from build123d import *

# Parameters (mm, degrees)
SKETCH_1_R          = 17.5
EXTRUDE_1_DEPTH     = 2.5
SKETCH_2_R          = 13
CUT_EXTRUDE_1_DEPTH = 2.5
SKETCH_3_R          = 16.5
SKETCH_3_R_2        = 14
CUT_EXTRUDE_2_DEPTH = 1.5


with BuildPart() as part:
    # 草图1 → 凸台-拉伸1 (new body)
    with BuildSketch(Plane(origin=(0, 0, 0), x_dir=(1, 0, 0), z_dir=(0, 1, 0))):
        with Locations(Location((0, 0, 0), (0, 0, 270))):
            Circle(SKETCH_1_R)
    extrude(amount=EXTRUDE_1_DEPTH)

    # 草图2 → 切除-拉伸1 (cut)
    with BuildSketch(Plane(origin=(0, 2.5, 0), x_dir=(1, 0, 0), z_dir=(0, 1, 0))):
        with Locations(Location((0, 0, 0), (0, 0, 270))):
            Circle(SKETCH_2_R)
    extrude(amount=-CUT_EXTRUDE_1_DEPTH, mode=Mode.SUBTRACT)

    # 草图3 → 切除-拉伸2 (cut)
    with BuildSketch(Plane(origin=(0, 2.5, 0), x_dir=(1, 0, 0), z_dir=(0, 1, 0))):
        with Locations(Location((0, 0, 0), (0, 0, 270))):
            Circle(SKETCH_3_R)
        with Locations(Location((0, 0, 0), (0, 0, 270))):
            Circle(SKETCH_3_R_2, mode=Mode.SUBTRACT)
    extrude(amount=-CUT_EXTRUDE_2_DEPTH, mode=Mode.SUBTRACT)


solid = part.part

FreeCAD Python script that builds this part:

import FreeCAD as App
import Part
import Sketcher
Q = App.Units.Quantity

doc = App.newDocument("Part")
body = doc.addObject("PartDesign::Body", "Body")

# Sketch on XZ plane
sketch1 = body.newObject("Sketcher::SketchObject", "Sketch")
sketch1.AttachmentSupport = (doc.getObject("XZ_Plane"), [""])
sketch1.MapMode = "FlatFace"
sketch1.addGeometry(Part.Circle(App.Vector(0, 0, 0), App.Vector(0, 0, 1), 17.5), False)
sketch1.addConstraint([
    Sketcher.Constraint("Coincident", 0, 3, -1, 1),
    Sketcher.Constraint("Diameter", 0, Q("35 mm")),
])
pad1 = body.newObject("PartDesign::Pad", "Pad")
pad1.Profile = sketch1
pad1.Length = 2.5
pad1.Reversed = True

# Sketch on XZ plane
sketch2 = body.newObject("Sketcher::SketchObject", "Sketch001")
sketch2.AttachmentSupport = (doc.getObject("XZ_Plane"), [""])
sketch2.MapMode = "FlatFace"
sketch2.AttachmentOffset = App.Placement(App.Vector(0, 0, -2.5), App.Rotation())
sketch2.addGeometry(Part.Circle(App.Vector(0, 0, 0), App.Vector(0, 0, 1), 13), False)
sketch2.addConstraint([
    Sketcher.Constraint("Coincident", 0, 3, -1, 1),
    Sketcher.Constraint("Diameter", 0, Q("26 mm")),
])
pocket1 = body.newObject("PartDesign::Pocket", "Pocket")
pocket1.Profile = sketch2
pocket1.Length = 2.5
pocket1.Reversed = True

# Sketch on XZ plane
sketch3 = body.newObject("Sketcher::SketchObject", "Sketch002")
sketch3.AttachmentSupport = (doc.getObject("XZ_Plane"), [""])
sketch3.MapMode = "FlatFace"
sketch3.AttachmentOffset = App.Placement(App.Vector(0, 0, -2.5), App.Rotation())
sketch3.addGeometry([
    Part.Circle(App.Vector(0, 0, 0), App.Vector(0, 0, 1), 16.5),
    Part.Circle(App.Vector(0, 0, 0), App.Vector(0, 0, 1), 14),
], False)
sketch3.addConstraint([
    Sketcher.Constraint("Coincident", 0, 3, -1, 1),
    Sketcher.Constraint("Coincident", 1, 3, -1, 1),
    Sketcher.Constraint("Diameter", 0, Q("33 mm")),
    Sketcher.Constraint("Diameter", 1, Q("28 mm")),
])
pocket2 = body.newObject("PartDesign::Pocket", "Pocket001")
pocket2.Profile = sketch3
pocket2.Length = 1.5
pocket2.Reversed = True

doc.recompute()
